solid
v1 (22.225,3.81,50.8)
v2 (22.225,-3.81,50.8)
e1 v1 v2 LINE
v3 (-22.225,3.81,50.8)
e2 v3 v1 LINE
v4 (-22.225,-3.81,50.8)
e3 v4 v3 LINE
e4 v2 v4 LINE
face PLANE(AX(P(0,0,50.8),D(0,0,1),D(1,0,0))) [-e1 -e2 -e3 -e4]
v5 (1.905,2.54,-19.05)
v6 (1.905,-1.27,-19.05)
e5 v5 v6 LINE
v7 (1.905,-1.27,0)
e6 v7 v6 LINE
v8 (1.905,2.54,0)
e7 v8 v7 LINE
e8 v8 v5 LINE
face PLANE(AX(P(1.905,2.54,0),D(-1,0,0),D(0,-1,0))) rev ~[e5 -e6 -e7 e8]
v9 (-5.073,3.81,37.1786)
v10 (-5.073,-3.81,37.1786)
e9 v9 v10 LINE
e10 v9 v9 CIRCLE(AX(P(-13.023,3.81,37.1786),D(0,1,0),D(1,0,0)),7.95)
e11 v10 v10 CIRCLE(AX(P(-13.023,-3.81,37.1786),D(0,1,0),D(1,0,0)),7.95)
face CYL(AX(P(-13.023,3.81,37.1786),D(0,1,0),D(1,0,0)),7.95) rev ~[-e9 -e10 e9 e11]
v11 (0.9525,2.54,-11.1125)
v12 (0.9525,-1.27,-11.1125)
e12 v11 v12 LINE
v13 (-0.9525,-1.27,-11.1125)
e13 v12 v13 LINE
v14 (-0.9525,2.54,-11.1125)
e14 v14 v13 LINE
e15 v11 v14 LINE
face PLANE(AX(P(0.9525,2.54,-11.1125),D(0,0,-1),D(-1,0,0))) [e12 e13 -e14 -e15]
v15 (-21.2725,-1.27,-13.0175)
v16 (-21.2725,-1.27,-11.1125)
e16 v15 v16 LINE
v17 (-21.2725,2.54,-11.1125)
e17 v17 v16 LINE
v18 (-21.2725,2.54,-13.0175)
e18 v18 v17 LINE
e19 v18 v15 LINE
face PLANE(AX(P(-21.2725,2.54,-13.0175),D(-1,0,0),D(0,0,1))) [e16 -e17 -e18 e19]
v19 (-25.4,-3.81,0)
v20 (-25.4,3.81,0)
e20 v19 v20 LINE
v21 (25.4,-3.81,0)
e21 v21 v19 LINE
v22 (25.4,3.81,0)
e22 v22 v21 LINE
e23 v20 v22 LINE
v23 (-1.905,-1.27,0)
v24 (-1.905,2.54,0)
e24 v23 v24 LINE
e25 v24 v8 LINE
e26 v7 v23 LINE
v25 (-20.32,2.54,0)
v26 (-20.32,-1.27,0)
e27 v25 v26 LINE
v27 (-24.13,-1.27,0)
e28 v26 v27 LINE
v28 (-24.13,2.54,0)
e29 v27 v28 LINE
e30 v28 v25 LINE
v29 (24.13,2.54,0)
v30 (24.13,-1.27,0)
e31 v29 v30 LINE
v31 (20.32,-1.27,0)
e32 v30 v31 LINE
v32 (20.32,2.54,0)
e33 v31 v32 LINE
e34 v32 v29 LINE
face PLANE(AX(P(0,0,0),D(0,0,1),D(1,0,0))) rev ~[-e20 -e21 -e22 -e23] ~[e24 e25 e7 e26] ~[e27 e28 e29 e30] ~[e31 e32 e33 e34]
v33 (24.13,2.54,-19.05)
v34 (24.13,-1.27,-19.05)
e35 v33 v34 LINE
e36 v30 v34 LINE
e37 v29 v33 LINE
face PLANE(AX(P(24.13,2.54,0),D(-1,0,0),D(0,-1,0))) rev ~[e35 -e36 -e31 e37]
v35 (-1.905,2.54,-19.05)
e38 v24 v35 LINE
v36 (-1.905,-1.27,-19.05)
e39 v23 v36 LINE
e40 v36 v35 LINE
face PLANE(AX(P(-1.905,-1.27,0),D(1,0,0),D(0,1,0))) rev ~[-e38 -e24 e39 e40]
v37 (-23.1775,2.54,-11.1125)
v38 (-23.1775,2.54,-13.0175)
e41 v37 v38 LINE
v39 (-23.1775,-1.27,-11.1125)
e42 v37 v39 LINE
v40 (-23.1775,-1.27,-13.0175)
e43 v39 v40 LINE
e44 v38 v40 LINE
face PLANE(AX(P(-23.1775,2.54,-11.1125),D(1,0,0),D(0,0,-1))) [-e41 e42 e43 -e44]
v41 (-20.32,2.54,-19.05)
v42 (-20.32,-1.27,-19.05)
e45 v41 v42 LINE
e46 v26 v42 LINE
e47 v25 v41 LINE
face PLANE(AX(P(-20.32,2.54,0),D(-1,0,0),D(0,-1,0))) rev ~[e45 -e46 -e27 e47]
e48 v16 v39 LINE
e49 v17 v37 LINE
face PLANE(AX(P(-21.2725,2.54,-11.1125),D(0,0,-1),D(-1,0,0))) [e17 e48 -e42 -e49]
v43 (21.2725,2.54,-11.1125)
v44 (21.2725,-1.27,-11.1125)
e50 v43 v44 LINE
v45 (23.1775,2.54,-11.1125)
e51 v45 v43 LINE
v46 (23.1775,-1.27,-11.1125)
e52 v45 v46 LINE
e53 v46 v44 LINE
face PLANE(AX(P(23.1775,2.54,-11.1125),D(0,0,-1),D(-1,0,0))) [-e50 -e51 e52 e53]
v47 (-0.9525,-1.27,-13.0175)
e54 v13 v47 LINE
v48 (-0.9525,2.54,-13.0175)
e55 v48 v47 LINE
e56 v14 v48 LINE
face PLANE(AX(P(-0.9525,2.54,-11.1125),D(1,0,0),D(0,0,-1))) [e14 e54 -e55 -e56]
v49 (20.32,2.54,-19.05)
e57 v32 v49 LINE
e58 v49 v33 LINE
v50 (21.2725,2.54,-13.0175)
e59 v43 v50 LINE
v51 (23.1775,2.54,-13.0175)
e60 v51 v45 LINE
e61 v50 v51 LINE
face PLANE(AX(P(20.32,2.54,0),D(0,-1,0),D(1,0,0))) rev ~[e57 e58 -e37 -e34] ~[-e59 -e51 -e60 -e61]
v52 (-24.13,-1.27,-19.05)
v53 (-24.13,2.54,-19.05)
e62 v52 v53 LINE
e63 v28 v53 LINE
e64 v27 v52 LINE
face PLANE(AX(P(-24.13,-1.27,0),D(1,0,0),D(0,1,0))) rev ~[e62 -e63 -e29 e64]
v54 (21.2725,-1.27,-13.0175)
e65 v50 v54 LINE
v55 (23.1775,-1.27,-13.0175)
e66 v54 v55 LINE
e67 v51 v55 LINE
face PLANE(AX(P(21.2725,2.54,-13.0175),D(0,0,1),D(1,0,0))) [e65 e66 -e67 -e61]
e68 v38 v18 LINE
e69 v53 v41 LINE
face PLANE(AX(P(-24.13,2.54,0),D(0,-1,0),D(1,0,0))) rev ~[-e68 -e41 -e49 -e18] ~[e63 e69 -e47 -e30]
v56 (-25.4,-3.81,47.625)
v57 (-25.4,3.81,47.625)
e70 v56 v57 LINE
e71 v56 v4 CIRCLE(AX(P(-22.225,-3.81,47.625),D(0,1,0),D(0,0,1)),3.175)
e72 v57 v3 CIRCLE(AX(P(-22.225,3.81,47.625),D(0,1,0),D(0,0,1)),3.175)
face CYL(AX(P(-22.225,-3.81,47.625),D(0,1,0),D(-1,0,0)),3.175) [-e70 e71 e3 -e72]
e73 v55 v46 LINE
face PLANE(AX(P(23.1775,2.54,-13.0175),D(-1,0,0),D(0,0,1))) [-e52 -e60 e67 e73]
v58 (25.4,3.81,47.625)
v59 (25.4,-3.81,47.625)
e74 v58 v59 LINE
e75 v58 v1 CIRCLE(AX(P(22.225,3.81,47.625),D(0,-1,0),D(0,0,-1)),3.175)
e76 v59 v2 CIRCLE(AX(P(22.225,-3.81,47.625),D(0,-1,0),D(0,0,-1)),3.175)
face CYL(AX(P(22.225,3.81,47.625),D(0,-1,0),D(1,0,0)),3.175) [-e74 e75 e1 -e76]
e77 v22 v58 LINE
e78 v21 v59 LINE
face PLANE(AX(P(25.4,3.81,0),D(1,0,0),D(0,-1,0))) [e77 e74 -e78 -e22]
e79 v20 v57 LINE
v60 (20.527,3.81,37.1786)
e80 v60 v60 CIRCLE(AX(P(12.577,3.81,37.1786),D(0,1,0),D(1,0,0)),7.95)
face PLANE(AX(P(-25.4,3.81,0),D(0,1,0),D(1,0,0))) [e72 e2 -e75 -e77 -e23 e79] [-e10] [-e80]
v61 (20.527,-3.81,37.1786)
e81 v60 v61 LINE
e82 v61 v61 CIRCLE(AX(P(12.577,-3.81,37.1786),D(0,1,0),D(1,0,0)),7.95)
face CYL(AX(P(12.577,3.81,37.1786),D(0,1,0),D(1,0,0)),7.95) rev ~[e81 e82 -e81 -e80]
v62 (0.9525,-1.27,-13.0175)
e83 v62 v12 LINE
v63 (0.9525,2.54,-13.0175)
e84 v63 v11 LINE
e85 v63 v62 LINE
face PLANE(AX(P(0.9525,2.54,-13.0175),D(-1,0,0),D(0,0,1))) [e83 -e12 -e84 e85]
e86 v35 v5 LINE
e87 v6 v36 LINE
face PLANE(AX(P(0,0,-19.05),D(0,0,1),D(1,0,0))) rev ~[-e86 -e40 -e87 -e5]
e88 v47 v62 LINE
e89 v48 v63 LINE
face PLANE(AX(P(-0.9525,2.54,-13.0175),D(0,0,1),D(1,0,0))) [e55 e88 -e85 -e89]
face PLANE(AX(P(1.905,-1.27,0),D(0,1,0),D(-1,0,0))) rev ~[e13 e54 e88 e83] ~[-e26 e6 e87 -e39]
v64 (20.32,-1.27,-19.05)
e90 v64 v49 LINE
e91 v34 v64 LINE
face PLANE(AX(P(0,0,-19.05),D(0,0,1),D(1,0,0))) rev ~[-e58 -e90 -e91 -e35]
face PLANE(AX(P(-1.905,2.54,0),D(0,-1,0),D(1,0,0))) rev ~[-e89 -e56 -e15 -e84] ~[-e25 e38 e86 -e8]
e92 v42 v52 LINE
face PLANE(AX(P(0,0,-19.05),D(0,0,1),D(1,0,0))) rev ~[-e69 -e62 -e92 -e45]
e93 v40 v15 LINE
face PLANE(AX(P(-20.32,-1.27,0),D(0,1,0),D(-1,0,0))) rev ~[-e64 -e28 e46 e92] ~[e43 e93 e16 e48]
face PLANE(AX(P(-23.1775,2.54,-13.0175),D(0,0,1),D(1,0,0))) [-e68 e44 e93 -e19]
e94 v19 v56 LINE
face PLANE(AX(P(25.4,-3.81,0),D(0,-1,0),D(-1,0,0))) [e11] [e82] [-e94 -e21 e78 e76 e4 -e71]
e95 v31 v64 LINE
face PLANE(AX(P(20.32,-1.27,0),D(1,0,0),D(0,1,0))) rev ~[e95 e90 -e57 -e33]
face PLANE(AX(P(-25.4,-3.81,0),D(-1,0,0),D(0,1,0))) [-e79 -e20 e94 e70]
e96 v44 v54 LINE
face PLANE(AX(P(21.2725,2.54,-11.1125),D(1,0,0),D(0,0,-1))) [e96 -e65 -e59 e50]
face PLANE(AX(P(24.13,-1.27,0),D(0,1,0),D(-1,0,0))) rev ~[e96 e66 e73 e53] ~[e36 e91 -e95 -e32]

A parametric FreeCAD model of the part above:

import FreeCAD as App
import Part
import Sketcher
Q = App.Units.Quantity


def edges_at(feature, points):
    """Names of the edges that pass closest to the given points."""
    edges = feature.Shape.Edges
    near = lambda p: min(range(len(edges)), key=lambda i: edges[i].distToShape(Part.Vertex(*p))[0])
    return sorted({f"Edge{near(p) + 1}" for p in points})


def add_polygon(sketch, points):
    """Adds a closed chain of lines whose ends are joined by coincident constraints."""
    first, n = sketch.GeometryCount, len(points)
    for a, b in zip(points, points[1:] + points[:1]):
        sketch.addGeometry(Part.LineSegment(App.Vector(*a, 0), App.Vector(*b, 0)), False)
    for i in range(n):
        sketch.addConstraint(Sketcher.Constraint("Coincident", first + i, 2, first + (i + 1) % n, 1))

doc = App.newDocument("Part")
params = doc.addObject("Spreadsheet::Sheet", "Params")
for row, (alias, value) in enumerate([
    ("sketch1_width", "0.15 in"),
    ("pad1_length", "0.75 in"),
    ("sketch2_width", "0.075 in"),
    ("pocket1_length", "0.15 in"),
    ("sketch3_width", "2 in"),
    ("sketch3_height", "0.3 in"),
    ("pad2_length", "2 in"),
    ("pocket2_length", "0.3 in"),
    ("fillet_radius", "0.125 in"),
], start=1):
    params.set(f"A{row}", alias)
    params.set(f"B{row}", "=" + value)
    params.setAlias(f"B{row}", alias)

body = doc.addObject("PartDesign::Body", "Body")
body.AllowCompound = True

# Sketch on XY plane
sketch1 = body.newObject("Sketcher::SketchObject", "Sketch")
sketch1.AttachmentSupport = (doc.getObject("XY_Plane"), [""])
sketch1.MapMode = "FlatFace"
add_polygon(sketch1, [(20.3, -1.3), (24.1, -1.3), (24.1, 2.5), (20.3, 2.5)])  # lines 0-3
add_polygon(sketch1, [(-1.9, 2.5), (-1.9, -1.3), (1.9, -1.3), (1.9, 2.5)])  # lines 4-7
add_polygon(sketch1, [(-20.3, -1.3), (-20.3, 2.5), (-24.1, 2.5), (-24.1, -1.3)])  # lines 8-11
sketch1.addConstraint(Sketcher.Constraint("Horizontal", 0))
sketch1.addConstraint(Sketcher.Constraint("Vertical", 1))
sketch1.addConstraint(Sketcher.Constraint("Horizontal", 2))
sketch1.addConstraint(Sketcher.Constraint("Vertical", 3))
sketch1.addConstraint(Sketcher.Constraint("Vertical", 4))
sketch1.addConstraint(Sketcher.Constraint("Horizontal", 5))
sketch1.addConstraint(Sketcher.Constraint("Vertical", 6))
sketch1.addConstraint(Sketcher.Constraint("Horizontal", 7))
sketch1.addConstraint(Sketcher.Constraint("Vertical", 8))
sketch1.addConstraint(Sketcher.Constraint("Horizontal", 9))
sketch1.addConstraint(Sketcher.Constraint("Vertical", 10))
sketch1.addConstraint(Sketcher.Constraint("Horizontal", 11))
sketch1.addConstraint(Sketcher.Constraint("Symmetric", 2, 2, 8, 2, -2))
sketch1.addConstraint(Sketcher.Constraint("Symmetric", 0, 2, 10, 2, -2))
sketch1.addConstraint(Sketcher.Constraint("Horizontal", 3, 2, 4, 2))
sketch1.addConstraint(Sketcher.Constraint("Horizontal", 2, 2, 6, 2))
sketch1.addConstraint(Sketcher.Constraint("Equal", 2, 5))
sketch1.addConstraint(Sketcher.Constraint("Equal", 11, 1))
sketch1.addConstraint(Sketcher.Constraint("DistanceX", 0, 1, 0, 2, Q("0.15 in")))
sketch1.addConstraint(Sketcher.Constraint("DistanceY", -1, 1, 1, 2, Q("0.1 in")))
sketch1.addConstraint(Sketcher.Constraint("DistanceX", -1, 1, 2, 2, Q("0.8 in")))
sketch1.addConstraint(Sketcher.Constraint("DistanceX", 4, 2, -1, 1, Q("0.075 in")))
sketch1.setExpression("Constraints[30]", "Params.sketch1_width")
pad1 = body.newObject("PartDesign::Pad", "Pad")
pad1.Profile = sketch1
pad1.setExpression("Length", "Params.pad1_length")
pad1.Reversed = True

# Sketch on XZ plane
sketch2 = body.newObject("Sketcher::SketchObject", "Sketch001")
sketch2.AttachmentSupport = (doc.getObject("XZ_Plane"), [""])
sketch2.MapMode = "FlatFace"
sketch2.AttachmentOffset = App.Placement(App.Vector(0, 0, -0.1 * 25.4), App.Rotation())
add_polygon(sketch2, [(21.3, -11.1), (23.2, -11.1), (23.2, -13), (21.3, -13)])  # lines 0-3
add_polygon(sketch2, [(1, -13), (-1, -13), (-1, -11.1), (1, -11.1)])  # lines 4-7
add_polygon(sketch2, [(-21.3, -13), (-23.2, -13), (-23.2, -11.1), (-21.3, -11.1)])  # lines 8-11
sketch2.addConstraint(Sketcher.Constraint("Horizontal", 0))
sketch2.addConstraint(Sketcher.Constraint("Vertical", 1))
sketch2.addConstraint(Sketcher.Constraint("Horizontal", 2))
sketch2.addConstraint(Sketcher.Constraint("Vertical", 3))
sketch2.addConstraint(Sketcher.Constraint("Horizontal", 4))
sketch2.addConstraint(Sketcher.Constraint("Vertical", 5))
sketch2.addConstraint(Sketcher.Constraint("Horizontal", 6))
sketch2.addConstraint(Sketcher.Constraint("Vertical", 7))
sketch2.addConstraint(Sketcher.Constraint("Horizontal", 8))
sketch2.addConstraint(Sketcher.Constraint("Vertical", 9))
sketch2.addConstraint(Sketcher.Constraint("Horizontal", 10))
sketch2.addConstraint(Sketcher.Constraint("Vertical", 11))
sketch2.addConstraint(Sketcher.Constraint("Symmetric", 1, 2, 8, 2, -2))
sketch2.addConstraint(Sketcher.Constraint("Symmetric", 3, 2, 10, 2, -2))
sketch2.addConstraint(Sketcher.Constraint("Horizontal", 2, 2, 4, 2))
sketch2.addConstraint(Sketcher.Constraint("Horizontal", 3, 2, 5, 2))
sketch2.addConstraint(Sketcher.Constraint("Equal", 2, 4))
sketch2.addConstraint(Sketcher.Constraint("Equal", 10, 1))
sketch2.addConstraint(Sketcher.Constraint("DistanceX", 6, 2, 3, 2, Q("0.8 in")))
sketch2.addConstraint(Sketcher.Constraint("DistanceX", 10, 2, 5, 2, Q("0.8 in")))
sketch2.addConstraint(Sketcher.Constraint("DistanceX", 0, 1, 0, 2, Q("0.075 in")))
sketch2.addConstraint(Sketcher.Constraint("DistanceY", 0, 2, -1, 1, Q("0.4375 in")))
sketch2.setExpression("Constraints[32]", "Params.sketch2_width")
pocket1 = body.newObject("PartDesign::Pocket", "Pocket")
pocket1.Profile = sketch2
pocket1.setExpression("Length", "Params.pocket1_length")
pocket1.Reversed = True

# Sketch on XY plane
sketch3 = body.newObject("Sketcher::SketchObject", "Sketch002")
sketch3.AttachmentSupport = (doc.getObject("XY_Plane"), [""])
sketch3.MapMode = "FlatFace"
add_polygon(sketch3, [(25, 4), (-25, 4), (-25, -4), (25, -4)])  # lines 0-3
sketch3.addConstraint(Sketcher.Constraint("Horizontal", 0))
sketch3.addConstraint(Sketcher.Constraint("Vertical", 1))
sketch3.addConstraint(Sketcher.Constraint("Horizontal", 2))
sketch3.addConstraint(Sketcher.Constraint("Vertical", 3))
sketch3.addConstraint(Sketcher.Constraint("Symmetric", 0, 2, 2, 2, -1, 1))
sketch3.addConstraint(Sketcher.Constraint("DistanceX", 0, 2, 0, 1, Q("2 in")))
sketch3.addConstraint(Sketcher.Constraint("DistanceY", 1, 2, 1, 1, Q("0.3 in")))
sketch3.setExpression("Constraints[9]", "Params.sketch3_width")
sketch3.setExpression("Constraints[10]", "Params.sketch3_height")
pad2 = body.newObject("PartDesign::Pad", "Pad001")
pad2.Profile = sketch3
pad2.setExpression("Length", "Params.pad2_length")

# Sketch on XZ plane
sketch4 = body.newObject("Sketcher::SketchObject", "Sketch003")
sketch4.AttachmentSupport = (doc.getObject("XZ_Plane"), [""])
sketch4.MapMode = "FlatFace"
sketch4.AttachmentOffset = App.Placement(App.Vector(0, 0, -0.15 * 25.4), App.Rotation())
sketch4.addGeometry(Part.Circle(App.Vector(-13, 37, 0), App.Vector(0, 0, 1), 8), False)
sketch4.addGeometry(Part.Circle(App.Vector(13, 37, 0), App.Vector(0, 0, 1), 8), False)
sketch4.addConstraint(Sketcher.Constraint("Equal", 0, 1))
sketch4.addConstraint(Sketcher.Constraint("Horizontal", 0, 3, 1, 3))
sketch4.addConstraint(Sketcher.Constraint("Diameter", 0, Q("15.9 mm")))
sketch4.addConstraint(Sketcher.Constraint("DistanceX", 0, 3, -1, 1, Q("13.023 mm")))
sketch4.addConstraint(Sketcher.Constraint("DistanceY", -1, 1, 0, 3, Q("37.1786 mm")))
sketch4.addConstraint(Sketcher.Constraint("DistanceX", -1, 1, 1, 3, Q("12.577 mm")))
pocket2 = body.newObject("PartDesign::Pocket", "Pocket001")
pocket2.Profile = sketch4
pocket2.setExpression("Length", "Params.pocket2_length")
pocket2.Reversed = True
doc.recompute()

fillet = body.newObject("PartDesign::Fillet", "Fillet")
fillet.Base = (pocket2, edges_at(pocket2, [(-25.4, 0, 50.8), (25.4, 0, 50.8)]))
fillet.setExpression("Radius", "Params.fillet_radius")

doc.recompute()
